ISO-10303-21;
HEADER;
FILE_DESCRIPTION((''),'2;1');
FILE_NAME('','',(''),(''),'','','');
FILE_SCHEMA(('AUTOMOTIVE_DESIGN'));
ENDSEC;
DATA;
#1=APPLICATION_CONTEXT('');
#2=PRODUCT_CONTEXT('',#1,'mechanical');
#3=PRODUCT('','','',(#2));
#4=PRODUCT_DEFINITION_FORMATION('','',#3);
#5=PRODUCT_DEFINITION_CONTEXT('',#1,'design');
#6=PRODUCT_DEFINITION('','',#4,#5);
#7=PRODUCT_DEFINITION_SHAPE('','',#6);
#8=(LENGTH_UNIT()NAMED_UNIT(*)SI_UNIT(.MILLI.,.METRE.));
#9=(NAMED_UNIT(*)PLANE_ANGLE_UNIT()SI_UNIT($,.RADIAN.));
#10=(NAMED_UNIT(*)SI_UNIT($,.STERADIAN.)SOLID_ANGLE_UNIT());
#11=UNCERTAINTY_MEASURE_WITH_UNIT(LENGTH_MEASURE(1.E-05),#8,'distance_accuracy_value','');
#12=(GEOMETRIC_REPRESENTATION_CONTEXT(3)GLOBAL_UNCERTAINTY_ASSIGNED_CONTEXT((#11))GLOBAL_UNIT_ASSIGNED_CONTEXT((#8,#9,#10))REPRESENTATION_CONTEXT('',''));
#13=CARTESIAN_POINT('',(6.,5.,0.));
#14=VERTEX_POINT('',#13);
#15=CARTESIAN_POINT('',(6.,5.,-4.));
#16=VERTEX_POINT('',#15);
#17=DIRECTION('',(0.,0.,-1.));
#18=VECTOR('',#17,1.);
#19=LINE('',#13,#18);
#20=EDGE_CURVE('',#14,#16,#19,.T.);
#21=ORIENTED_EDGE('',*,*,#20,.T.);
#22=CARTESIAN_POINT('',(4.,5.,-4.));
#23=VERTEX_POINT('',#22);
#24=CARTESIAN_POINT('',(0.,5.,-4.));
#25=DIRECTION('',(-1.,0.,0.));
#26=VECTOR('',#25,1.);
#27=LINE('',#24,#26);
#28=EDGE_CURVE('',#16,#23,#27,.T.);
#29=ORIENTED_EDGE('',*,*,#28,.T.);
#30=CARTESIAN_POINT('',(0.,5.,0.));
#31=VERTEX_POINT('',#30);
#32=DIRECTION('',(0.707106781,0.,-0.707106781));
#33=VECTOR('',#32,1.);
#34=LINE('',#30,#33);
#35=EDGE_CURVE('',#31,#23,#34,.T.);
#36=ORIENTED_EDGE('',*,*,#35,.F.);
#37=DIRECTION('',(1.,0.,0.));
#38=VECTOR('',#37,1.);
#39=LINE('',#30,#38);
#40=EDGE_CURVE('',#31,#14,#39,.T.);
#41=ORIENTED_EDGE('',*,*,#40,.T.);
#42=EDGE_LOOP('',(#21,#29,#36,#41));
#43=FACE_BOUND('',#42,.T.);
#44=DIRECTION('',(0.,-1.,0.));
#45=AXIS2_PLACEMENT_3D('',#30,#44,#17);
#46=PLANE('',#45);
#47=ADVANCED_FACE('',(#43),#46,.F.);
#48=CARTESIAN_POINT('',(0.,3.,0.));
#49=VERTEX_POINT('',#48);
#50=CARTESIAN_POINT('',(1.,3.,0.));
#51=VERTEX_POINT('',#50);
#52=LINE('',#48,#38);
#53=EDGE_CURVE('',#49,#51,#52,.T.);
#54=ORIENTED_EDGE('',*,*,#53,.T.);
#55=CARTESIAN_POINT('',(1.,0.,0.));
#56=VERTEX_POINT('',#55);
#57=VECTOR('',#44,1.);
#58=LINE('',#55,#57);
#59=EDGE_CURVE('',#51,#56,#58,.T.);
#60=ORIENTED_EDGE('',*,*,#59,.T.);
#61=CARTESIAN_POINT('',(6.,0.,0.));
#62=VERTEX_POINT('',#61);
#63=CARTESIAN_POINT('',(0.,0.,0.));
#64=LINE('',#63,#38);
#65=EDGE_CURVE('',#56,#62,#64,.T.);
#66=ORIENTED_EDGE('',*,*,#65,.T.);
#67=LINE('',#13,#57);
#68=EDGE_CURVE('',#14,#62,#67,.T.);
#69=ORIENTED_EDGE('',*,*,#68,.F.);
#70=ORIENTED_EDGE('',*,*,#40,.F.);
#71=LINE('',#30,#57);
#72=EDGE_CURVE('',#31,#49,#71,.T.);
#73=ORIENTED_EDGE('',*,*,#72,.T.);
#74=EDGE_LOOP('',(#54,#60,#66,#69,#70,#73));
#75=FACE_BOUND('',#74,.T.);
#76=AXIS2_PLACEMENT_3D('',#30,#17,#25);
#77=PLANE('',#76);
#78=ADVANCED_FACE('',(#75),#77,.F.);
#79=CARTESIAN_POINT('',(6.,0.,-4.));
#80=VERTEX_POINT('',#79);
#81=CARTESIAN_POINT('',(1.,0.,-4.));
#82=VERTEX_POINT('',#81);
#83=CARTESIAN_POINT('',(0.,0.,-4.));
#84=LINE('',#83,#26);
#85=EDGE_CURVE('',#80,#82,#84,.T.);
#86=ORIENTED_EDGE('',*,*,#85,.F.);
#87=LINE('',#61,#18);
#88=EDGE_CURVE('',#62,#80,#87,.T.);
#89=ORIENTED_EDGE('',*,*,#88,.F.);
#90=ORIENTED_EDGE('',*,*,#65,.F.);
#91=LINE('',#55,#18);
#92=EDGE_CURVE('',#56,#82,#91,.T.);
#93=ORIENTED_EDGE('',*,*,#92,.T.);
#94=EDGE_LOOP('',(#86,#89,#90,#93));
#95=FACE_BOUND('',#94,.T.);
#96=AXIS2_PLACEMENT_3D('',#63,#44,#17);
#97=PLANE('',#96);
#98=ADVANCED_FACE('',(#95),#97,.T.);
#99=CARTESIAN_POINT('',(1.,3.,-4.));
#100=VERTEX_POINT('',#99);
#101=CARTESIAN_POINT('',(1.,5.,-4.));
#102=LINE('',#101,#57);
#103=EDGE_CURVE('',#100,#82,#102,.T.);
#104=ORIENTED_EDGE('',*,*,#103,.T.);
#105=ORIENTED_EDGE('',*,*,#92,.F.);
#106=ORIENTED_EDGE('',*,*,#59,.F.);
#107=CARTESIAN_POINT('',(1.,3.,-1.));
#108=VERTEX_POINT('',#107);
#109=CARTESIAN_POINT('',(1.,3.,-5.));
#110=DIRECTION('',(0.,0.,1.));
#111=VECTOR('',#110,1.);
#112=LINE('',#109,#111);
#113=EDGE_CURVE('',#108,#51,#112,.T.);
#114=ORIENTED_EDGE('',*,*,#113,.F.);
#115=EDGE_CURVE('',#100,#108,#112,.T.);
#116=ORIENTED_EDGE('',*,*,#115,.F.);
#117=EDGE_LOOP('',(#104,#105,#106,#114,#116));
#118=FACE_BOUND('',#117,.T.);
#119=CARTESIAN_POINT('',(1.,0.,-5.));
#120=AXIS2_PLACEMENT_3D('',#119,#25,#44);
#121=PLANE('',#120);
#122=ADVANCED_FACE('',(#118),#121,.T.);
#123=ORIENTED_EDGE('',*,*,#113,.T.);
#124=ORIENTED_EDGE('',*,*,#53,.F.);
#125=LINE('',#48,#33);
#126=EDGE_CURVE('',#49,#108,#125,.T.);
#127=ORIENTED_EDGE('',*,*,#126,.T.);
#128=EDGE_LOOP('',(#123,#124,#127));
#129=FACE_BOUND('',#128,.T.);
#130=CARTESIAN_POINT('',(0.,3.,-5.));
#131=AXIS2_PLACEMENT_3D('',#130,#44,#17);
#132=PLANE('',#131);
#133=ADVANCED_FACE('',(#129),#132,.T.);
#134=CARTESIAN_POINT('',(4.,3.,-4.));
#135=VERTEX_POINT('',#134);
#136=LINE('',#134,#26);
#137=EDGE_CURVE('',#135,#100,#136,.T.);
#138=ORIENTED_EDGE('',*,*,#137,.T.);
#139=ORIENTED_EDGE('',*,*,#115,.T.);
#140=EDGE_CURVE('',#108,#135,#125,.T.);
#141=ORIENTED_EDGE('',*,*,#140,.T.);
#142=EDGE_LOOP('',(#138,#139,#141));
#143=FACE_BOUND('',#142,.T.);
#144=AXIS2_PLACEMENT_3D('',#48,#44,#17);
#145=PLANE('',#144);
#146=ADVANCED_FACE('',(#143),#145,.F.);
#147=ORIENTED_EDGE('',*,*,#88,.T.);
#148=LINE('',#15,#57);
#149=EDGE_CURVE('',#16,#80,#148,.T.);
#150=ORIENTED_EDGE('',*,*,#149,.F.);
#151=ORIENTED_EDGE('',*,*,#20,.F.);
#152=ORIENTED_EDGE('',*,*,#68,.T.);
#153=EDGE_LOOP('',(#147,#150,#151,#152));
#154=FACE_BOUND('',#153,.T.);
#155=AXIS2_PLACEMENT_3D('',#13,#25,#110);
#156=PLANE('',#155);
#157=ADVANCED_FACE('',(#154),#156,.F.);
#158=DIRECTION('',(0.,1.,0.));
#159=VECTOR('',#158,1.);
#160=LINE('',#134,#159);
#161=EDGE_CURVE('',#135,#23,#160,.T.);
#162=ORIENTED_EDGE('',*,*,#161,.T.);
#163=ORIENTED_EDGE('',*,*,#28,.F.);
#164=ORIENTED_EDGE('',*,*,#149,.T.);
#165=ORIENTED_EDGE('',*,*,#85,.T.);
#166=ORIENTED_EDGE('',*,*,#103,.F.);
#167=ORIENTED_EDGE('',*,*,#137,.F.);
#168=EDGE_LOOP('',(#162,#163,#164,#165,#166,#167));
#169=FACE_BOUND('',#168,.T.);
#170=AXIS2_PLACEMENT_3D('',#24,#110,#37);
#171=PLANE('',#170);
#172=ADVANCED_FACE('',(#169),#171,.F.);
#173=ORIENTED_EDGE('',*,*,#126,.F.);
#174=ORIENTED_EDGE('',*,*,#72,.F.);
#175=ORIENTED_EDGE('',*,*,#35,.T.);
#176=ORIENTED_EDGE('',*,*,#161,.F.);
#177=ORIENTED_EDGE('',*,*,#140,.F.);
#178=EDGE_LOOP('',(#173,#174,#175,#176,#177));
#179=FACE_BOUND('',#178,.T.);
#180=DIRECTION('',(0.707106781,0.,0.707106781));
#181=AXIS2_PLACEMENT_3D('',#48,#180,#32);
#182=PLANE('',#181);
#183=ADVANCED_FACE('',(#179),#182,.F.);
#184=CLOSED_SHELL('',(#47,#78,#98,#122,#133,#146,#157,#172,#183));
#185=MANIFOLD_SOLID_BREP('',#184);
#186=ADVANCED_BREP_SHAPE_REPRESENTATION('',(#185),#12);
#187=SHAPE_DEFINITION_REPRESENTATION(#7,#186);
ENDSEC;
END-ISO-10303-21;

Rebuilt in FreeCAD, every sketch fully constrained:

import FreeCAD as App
import Part
import Sketcher

V = App.Vector


def add_polygon(sketch, points):
    """Adds a closed chain of lines whose ends are joined by coincident constraints."""
    first, n = sketch.GeometryCount, len(points)
    for a, b in zip(points, points[1:] + points[:1]):
        sketch.addGeometry(Part.LineSegment(App.Vector(*a, 0), App.Vector(*b, 0)), False)
    for i in range(n):
        sketch.addConstraint(Sketcher.Constraint("Coincident", first + i, 2, first + (i + 1) % n, 1))

doc = App.newDocument("Part")
body = doc.addObject("PartDesign::Body", "Body")

# Sketch on XZ plane
sketch1 = doc.addObject("Sketcher::SketchObject", "Sketch")
body.addObject(sketch1)
sketch1.AttachmentSupport = (doc.XZ_Plane, [""])
sketch1.MapMode = "FlatFace"
add_polygon(sketch1, [(0, -4), (0, 0), (6, 0), (6, -4)])  # lines 0-3
sketch1.addConstraint([
    Sketcher.Constraint("Vertical", 0),
    Sketcher.Constraint("Horizontal", 1),
    Sketcher.Constraint("Vertical", 2),
    Sketcher.Constraint("Horizontal", 3),
    Sketcher.Constraint("Coincident", 0, 2, -1, 1),
    Sketcher.Constraint("DistanceX", 1, 1, 1, 2, 6.0),
    Sketcher.Constraint("DistanceY", 0, 1, 0, 2, 4.0),
])
pad1 = doc.addObject("PartDesign::Pad", "Pad")
body.addObject(pad1)
pad1.Profile = sketch1
pad1.Length = 5
pad1.Reversed = True

# Sketch on XY plane
sketch2 = doc.addObject("Sketcher::SketchObject", "Sketch001")
body.addObject(sketch2)
sketch2.AttachmentSupport = (doc.XY_Plane, [""])
sketch2.MapMode = "FlatFace"
add_polygon(sketch2, [(0, 3), (0, 0), (1, 0), (1, 3)])  # lines 0-3
sketch2.addConstraint([
    Sketcher.Constraint("Vertical", 0),
    Sketcher.Constraint("Horizontal", 1),
    Sketcher.Constraint("Vertical", 2),
    Sketcher.Constraint("Horizontal", 3),
    Sketcher.Constraint("Coincident", 0, 2, -1, 1),
    Sketcher.Constraint("DistanceX", 1, 1, 1, 2, 1.0),
    Sketcher.Constraint("DistanceY", 0, 2, 0, 1, 3.0),
])
pocket1 = doc.addObject("PartDesign::Pocket", "Pocket")
body.addObject(pocket1)
pocket1.Profile = sketch2
pocket1.Length = 5

# Sketch on XZ plane
sketch3 = doc.addObject("Sketcher::SketchObject", "Sketch002")
body.addObject(sketch3)
sketch3.AttachmentSupport = (doc.XZ_Plane, [""])
sketch3.MapMode = "FlatFace"
sketch3.AttachmentOffset = App.Placement(V(0, 0, -5), App.Rotation())
add_polygon(sketch3, [(0, 0), (4, -4), (0, -4)])  # lines 0-2
sketch3.addConstraint([
    Sketcher.Constraint("Horizontal", 1),
    Sketcher.Constraint("Vertical", 2),
    Sketcher.Constraint("Coincident", 2, 2, -1, 1),
    Sketcher.Constraint("Equal", 1, 2),
    Sketcher.Constraint("DistanceX", 1, 2, 1, 1, 4.0),
])
pocket2 = doc.addObject("PartDesign::Pocket", "Pocket001")
body.addObject(pocket2)
pocket2.Profile = sketch3
pocket2.Length = 2
pocket2.Reversed = True

doc.recompute()
